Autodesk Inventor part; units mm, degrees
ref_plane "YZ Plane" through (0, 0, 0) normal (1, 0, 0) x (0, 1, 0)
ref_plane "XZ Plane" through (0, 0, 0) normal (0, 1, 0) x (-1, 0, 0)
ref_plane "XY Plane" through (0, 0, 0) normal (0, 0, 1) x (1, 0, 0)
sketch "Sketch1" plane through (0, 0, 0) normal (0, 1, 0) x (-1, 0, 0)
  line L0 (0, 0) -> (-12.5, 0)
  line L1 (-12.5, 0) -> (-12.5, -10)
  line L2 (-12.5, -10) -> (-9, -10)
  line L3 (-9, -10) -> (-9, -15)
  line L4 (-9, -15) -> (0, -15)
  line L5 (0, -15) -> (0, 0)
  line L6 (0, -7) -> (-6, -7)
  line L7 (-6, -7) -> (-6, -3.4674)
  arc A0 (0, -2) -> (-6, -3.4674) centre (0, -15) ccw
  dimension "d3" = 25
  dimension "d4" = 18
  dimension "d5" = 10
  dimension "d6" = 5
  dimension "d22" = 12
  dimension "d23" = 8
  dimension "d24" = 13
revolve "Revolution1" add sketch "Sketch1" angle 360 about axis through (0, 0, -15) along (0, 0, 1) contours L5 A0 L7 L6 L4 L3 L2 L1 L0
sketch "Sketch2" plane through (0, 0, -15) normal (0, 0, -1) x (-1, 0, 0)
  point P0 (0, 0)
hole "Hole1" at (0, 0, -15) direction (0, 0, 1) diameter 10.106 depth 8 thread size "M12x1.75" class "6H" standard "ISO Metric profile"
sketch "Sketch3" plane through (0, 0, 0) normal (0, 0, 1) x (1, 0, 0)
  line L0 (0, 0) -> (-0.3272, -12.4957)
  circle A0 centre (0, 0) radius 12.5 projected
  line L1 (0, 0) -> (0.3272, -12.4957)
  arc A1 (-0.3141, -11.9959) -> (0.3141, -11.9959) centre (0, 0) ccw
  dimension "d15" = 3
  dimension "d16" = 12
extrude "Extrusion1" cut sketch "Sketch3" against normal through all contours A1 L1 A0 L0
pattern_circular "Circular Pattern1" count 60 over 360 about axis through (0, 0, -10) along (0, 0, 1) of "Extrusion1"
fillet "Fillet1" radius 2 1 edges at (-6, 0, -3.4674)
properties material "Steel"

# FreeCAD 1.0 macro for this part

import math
import FreeCAD as App
import Part
import Sketcher
from FreeCAD import Vector
Q = App.Units.Quantity


def edges_at(feature, points):
    """Names of the edges that pass closest to the given points."""
    edges = feature.Shape.Edges
    near = lambda p: min(range(len(edges)), key=lambda i: edges[i].distToShape(Part.Vertex(*p))[0])
    return sorted({f"Edge{near(p) + 1}" for p in points})

doc = App.newDocument("Part")
body = doc.addObject("PartDesign::Body", "Body")

sketch1 = doc.addObject("Sketcher::SketchObject", "Sketch")
body.addObject(sketch1)
sketch1.AttachmentSupport = (doc.XZ_Plane, [""])
sketch1.MapMode = "FlatFace"
sketch1.addGeometry(Part.LineSegment(Vector(0, -2, 0), Vector(0, 0, 0)), False)
sketch1.addGeometry(Part.LineSegment(Vector(0, 0, 0), Vector(12.5, 0, 0)), False)
sketch1.addGeometry(Part.LineSegment(Vector(12.5, 0, 0), Vector(12.5, -10, 0)), False)
sketch1.addGeometry(Part.LineSegment(Vector(12.5, -10, 0), Vector(9, -10, 0)), False)
sketch1.addGeometry(Part.LineSegment(Vector(9, -10, 0), Vector(9, -15, 0)), False)
sketch1.addGeometry(Part.LineSegment(Vector(9, -15, 0), Vector(0, -15, 0)), False)
sketch1.addGeometry(Part.LineSegment(Vector(0, -15, 0), Vector(0, -7, 0)), False)
sketch1.addGeometry(Part.LineSegment(Vector(0, -7, 0), Vector(6, -7, 0)), False)
sketch1.addGeometry(Part.LineSegment(Vector(6, -7, 0), Vector(6, -3.5, 0)), False)
sketch1.addGeometry(Part.ArcOfCircle(Part.Circle(Vector(0, -15, 0), Vector(0, 0, 1), 13), math.radians(63), math.radians(90)), False)
sketch1.addConstraint(Sketcher.Constraint("Coincident", 0, 2, 1, 1))
sketch1.addConstraint(Sketcher.Constraint("Coincident", 1, 2, 2, 1))
sketch1.addConstraint(Sketcher.Constraint("Coincident", 2, 2, 3, 1))
sketch1.addConstraint(Sketcher.Constraint("Coincident", 3, 2, 4, 1))
sketch1.addConstraint(Sketcher.Constraint("Coincident", 4, 2, 5, 1))
sketch1.addConstraint(Sketcher.Constraint("Coincident", 5, 2, 6, 1))
sketch1.addConstraint(Sketcher.Constraint("Coincident", 6, 2, 7, 1))
sketch1.addConstraint(Sketcher.Constraint("Coincident", 7, 2, 8, 1))
sketch1.addConstraint(Sketcher.Constraint("Coincident", 8, 2, 9, 1))
sketch1.addConstraint(Sketcher.Constraint("Coincident", 9, 2, 0, 1))
sketch1.addConstraint(Sketcher.Constraint("Vertical", 0))
sketch1.addConstraint(Sketcher.Constraint("Horizontal", 1))
sketch1.addConstraint(Sketcher.Constraint("Vertical", 2))
sketch1.addConstraint(Sketcher.Constraint("Horizontal", 3))
sketch1.addConstraint(Sketcher.Constraint("Vertical", 4))
sketch1.addConstraint(Sketcher.Constraint("Horizontal", 5))
sketch1.addConstraint(Sketcher.Constraint("Vertical", 6))
sketch1.addConstraint(Sketcher.Constraint("Horizontal", 7))
sketch1.addConstraint(Sketcher.Constraint("Vertical", 8))
sketch1.addConstraint(Sketcher.Constraint("Coincident", 0, 2, -1, 1))
sketch1.addConstraint(Sketcher.Constraint("Coincident", 5, 2, 9, 3))
sketch1.addConstraint(Sketcher.Constraint("PointOnObject", 9, 3, -2))
sketch1.addConstraint(Sketcher.Constraint("Radius", 9, Q("13 mm")))
sketch1.addConstraint(Sketcher.Constraint("DistanceY", 2, 2, 2, 1, Q("10 mm")))
sketch1.addConstraint(Sketcher.Constraint("DistanceY", 4, 2, 4, 1, Q("5 mm")))
sketch1.addConstraint(Sketcher.Constraint("DistanceY", 6, 1, 6, 2, Q("8 mm")))
sketch1.addConstraint(Sketcher.Constraint("DistanceX", 5, 2, 5, 1, Q("9 mm")))
sketch1.addConstraint(Sketcher.Constraint("DistanceX", 7, 1, 7, 2, Q("6 mm")))
sketch1.addConstraint(Sketcher.Constraint("DistanceX", 1, 1, 1, 2, Q("12.5 mm")))
revolution = doc.addObject("PartDesign::Revolution", "Revolution")
body.addObject(revolution)
revolution.Profile = sketch1
revolution.ReferenceAxis = (sketch1, ["V_Axis"])
revolution.Angle = 360

sketch2 = doc.addObject("Sketcher::SketchObject", "Sketch001")
body.addObject(sketch2)
sketch2.AttachmentSupport = (doc.XY_Plane, [""])
sketch2.MapMode = "FlatFace"
sketch2.AttachmentOffset = App.Placement(Vector(0, 0, -15), App.Rotation())
sketch2.addGeometry(Part.Circle(Vector(0, 0, 0), Vector(0, 0, 1), 5), False)
sketch2.addConstraint(Sketcher.Constraint("Coincident", 0, 3, -1, 1))
sketch2.addConstraint(Sketcher.Constraint("Diameter", 0, Q("10.106 mm")))
doc.recompute()
hole = doc.addObject("PartDesign::Hole", "Hole")
body.addObject(hole)
hole.Profile = sketch2
hole.ThreadType = "None"
hole.Diameter = 10.106
hole.DepthType = "Dimension"
hole.Depth = 8
hole.DrillPoint = "Flat"
hole.Reversed = True

sketch3 = doc.addObject("Sketcher::SketchObject", "Sketch002")
body.addObject(sketch3)
sketch3.AttachmentSupport = (doc.XY_Plane, [""])
sketch3.MapMode = "FlatFace"
sketch3.addGeometry(Part.ArcOfCircle(Part.Circle(Vector(0, 0, 0), Vector(0, 0, 1), 12), math.radians(-91.5), math.radians(-88.5)), False)
sketch3.addGeometry(Part.LineSegment(Vector(-0.31, -12, 0), Vector(-0.33, -12.5, 0)), False)
sketch3.addGeometry(Part.ArcOfCircle(Part.Circle(Vector(0, 0, 0), Vector(0, 0, 1), 12.5), math.radians(-91.5), math.radians(-88.5)), False)
sketch3.addGeometry(Part.LineSegment(Vector(0.33, -12.5, 0), Vector(0.31, -12, 0)), False)
sketch3.addConstraint(Sketcher.Constraint("Coincident", 0, 1, 1, 1))
sketch3.addConstraint(Sketcher.Constraint("Coincident", 1, 2, 2, 1))
sketch3.addConstraint(Sketcher.Constraint("Coincident", 2, 2, 3, 1))
sketch3.addConstraint(Sketcher.Constraint("Coincident", 3, 2, 0, 2))
sketch3.addConstraint(Sketcher.Constraint("Coincident", 0, 3, -1, 1))
sketch3.addConstraint(Sketcher.Constraint("Coincident", 2, 3, -1, 1))
sketch3.addConstraint(Sketcher.Constraint("Horizontal", 1, 2, 2, 2))
sketch3.addConstraint(Sketcher.Constraint("Horizontal", 0, 1, 3, 2))
sketch3.addConstraint(Sketcher.Constraint("Radius", 0, Q("12 mm")))
sketch3.addConstraint(Sketcher.Constraint("Radius", 2, Q("12.5 mm")))
sketch3.addConstraint(Sketcher.Constraint("Angle", 1, Q("-91.5 deg")))
sketch3.addConstraint(Sketcher.Constraint("DistanceX", 0, 1, -1, 1, Q("0.314 mm")))
pocket1 = doc.addObject("PartDesign::Pocket", "Pocket")
body.addObject(pocket1)
pocket1.Profile = sketch3
pocket1.Type = "ThroughAll"
doc.recompute()

polarpattern = doc.addObject("PartDesign::PolarPattern", "PolarPattern")
body.addObject(polarpattern)
polarpattern.Originals = [pocket1]
polarpattern.Axis = (doc.Z_Axis, [""])
polarpattern.Angle = 360
polarpattern.Occurrences = 60
body.Tip = polarpattern
doc.recompute()

fillet = doc.addObject("PartDesign::Fillet", "Fillet")
body.addObject(fillet)
fillet.Base = (polarpattern, edges_at(polarpattern, [(-6, 0, -3.467)]))
fillet.Radius = 2

doc.recompute()
